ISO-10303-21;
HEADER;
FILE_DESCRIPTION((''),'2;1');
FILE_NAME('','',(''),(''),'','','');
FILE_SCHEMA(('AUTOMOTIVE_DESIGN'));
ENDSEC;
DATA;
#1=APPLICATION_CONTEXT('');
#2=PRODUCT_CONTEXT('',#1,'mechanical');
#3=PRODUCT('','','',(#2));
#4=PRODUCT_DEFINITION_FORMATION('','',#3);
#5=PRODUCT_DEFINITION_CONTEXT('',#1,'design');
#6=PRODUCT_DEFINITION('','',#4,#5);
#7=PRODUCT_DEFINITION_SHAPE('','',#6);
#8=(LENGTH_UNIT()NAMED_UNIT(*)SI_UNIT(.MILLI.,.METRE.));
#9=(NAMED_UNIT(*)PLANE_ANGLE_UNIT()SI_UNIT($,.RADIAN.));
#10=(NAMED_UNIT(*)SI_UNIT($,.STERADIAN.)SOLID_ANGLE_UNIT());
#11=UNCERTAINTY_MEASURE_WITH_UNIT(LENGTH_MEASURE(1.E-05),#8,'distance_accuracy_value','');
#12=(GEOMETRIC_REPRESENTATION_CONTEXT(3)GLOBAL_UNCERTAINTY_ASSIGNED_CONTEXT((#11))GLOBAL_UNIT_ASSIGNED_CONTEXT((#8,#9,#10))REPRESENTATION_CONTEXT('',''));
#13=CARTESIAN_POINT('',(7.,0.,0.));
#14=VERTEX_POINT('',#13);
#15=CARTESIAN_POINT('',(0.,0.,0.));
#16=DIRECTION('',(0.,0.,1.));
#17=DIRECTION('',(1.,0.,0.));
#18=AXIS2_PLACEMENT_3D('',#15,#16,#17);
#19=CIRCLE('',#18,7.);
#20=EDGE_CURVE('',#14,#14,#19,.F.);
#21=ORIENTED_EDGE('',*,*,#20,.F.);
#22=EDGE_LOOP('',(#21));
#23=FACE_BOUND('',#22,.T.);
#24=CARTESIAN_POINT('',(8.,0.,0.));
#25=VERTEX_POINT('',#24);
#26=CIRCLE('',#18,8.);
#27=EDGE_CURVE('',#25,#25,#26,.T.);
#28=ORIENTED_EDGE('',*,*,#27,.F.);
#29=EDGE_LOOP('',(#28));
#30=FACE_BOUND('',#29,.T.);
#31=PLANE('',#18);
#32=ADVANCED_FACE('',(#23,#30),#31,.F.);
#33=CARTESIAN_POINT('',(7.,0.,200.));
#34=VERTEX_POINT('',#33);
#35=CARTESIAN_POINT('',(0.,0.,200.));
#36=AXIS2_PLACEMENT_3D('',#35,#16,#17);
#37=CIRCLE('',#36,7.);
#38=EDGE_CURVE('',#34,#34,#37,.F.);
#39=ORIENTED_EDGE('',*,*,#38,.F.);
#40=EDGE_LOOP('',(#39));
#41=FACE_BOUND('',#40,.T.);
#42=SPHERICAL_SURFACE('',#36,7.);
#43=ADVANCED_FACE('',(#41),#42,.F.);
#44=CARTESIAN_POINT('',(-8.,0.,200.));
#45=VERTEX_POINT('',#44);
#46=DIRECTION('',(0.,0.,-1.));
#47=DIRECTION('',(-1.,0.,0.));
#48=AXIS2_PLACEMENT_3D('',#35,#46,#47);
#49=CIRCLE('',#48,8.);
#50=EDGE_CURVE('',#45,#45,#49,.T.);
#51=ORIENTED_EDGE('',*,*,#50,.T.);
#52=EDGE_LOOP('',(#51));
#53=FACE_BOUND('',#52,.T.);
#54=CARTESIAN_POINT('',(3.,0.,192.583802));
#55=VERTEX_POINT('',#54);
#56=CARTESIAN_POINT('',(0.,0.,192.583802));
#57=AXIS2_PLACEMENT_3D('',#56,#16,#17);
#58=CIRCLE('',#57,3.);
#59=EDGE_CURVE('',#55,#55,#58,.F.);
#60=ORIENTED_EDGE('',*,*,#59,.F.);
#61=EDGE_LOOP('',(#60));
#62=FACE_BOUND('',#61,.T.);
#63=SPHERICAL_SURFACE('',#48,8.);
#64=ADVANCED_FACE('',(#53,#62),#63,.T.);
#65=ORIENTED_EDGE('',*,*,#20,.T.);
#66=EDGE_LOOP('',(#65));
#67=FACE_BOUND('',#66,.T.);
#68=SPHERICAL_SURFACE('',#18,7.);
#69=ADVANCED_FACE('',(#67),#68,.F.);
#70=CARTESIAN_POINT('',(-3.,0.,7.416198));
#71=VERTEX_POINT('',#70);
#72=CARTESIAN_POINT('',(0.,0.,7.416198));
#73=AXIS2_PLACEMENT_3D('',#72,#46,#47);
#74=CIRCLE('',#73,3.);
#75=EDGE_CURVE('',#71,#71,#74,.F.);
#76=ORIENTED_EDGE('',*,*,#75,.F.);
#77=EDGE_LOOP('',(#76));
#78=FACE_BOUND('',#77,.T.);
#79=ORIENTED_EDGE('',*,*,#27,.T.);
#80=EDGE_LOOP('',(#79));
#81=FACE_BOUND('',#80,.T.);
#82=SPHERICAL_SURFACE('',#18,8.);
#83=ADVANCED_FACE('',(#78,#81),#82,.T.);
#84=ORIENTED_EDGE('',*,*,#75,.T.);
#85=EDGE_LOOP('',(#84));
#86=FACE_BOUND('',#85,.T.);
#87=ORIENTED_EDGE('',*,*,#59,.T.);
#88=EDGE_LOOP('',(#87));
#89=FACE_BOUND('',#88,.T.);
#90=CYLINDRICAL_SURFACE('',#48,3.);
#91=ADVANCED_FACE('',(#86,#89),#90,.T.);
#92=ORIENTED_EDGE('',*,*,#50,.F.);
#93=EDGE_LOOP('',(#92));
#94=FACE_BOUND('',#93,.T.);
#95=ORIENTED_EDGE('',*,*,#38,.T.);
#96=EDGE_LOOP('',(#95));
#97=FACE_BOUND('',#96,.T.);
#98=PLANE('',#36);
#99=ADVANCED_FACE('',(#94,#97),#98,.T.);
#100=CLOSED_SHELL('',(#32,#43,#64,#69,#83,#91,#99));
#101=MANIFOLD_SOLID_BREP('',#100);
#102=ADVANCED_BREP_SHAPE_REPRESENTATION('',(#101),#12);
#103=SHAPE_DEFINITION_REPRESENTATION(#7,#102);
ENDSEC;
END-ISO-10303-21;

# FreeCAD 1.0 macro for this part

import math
import FreeCAD as App
import Part
import Sketcher

doc = App.newDocument("Part")
body = doc.addObject("PartDesign::Body", "Body")

# Sketch on XY plane
sketch1 = body.newObject("Sketcher::SketchObject", "Sketch")
sketch1.AttachmentSupport = (doc.getObject("XY_Plane"), [""])
sketch1.MapMode = "FlatFace"
sketch1.addGeometry(Part.Circle(App.Vector(0, 0, 0), App.Vector(0, 0, 1), 3), False)
sketch1.addConstraint([
    Sketcher.Constraint("Coincident", 0, 3, -1, 1),
    Sketcher.Constraint("Diameter", 0, 6.0),
])
pad1 = body.newObject("PartDesign::Pad", "Pad")
pad1.Profile = sketch1
pad1.Length = 200

# Sketch on XY plane
sketch2 = body.newObject("Sketcher::SketchObject", "Sketch001")
sketch2.AttachmentSupport = (doc.getObject("XY_Plane"), [""])
sketch2.MapMode = "FlatFace"
sketch2.AttachmentOffset = App.Placement(App.Vector(0, 0, 200), App.Rotation())
sketch2.addGeometry([
    Part.LineSegment(App.Vector(0, 8, 0), App.Vector(0, -8, 0)),
    Part.ArcOfCircle(Part.Circle(App.Vector(0, 0, 0), App.Vector(0, 0, 1), 8), math.radians(-90), math.radians(90)),
], False)
sketch2.addConstraint([
    Sketcher.Constraint("Coincident", 0, 1, 1, 2),
    Sketcher.Constraint("Coincident", 1, 1, 0, 2),
    Sketcher.Constraint("Vertical", 0),
    Sketcher.Constraint("Coincident", 1, 3, -1, 1),
    Sketcher.Constraint("PointOnObject", 0, 1, -2),
    Sketcher.Constraint("Radius", 1, 8.0),
])
revolution = body.newObject("PartDesign::Revolution", "Revolution")
revolution.Profile = sketch2
revolution.ReferenceAxis = (sketch2, ["V_Axis"])
revolution.Angle = 180

# Sketch on XY plane
sketch3 = body.newObject("Sketcher::SketchObject", "Sketch002")
sketch3.AttachmentSupport = (doc.getObject("XY_Plane"), [""])
sketch3.MapMode = "FlatFace"
sketch3.AttachmentOffset = App.Placement(App.Vector(0, 0, 200), App.Rotation())
sketch3.addGeometry([
    Part.LineSegment(App.Vector(0, 7, 0), App.Vector(0, -7, 0)),
    Part.ArcOfCircle(Part.Circle(App.Vector(0, 0, 0), App.Vector(0, 0, 1), 7), math.radians(-90), math.radians(90)),
], False)
sketch3.addConstraint([
    Sketcher.Constraint("Coincident", 0, 1, 1, 2),
    Sketcher.Constraint("Coincident", 1, 1, 0, 2),
    Sketcher.Constraint("Vertical", 0),
    Sketcher.Constraint("Coincident", 1, 3, -1, 1),
    Sketcher.Constraint("PointOnObject", 0, 1, -2),
    Sketcher.Constraint("Radius", 1, 7.0),
])
groove = body.newObject("PartDesign::Groove", "Groove")
groove.Profile = sketch3
groove.ReferenceAxis = (sketch3, ["V_Axis"])
groove.Angle = 360

# Sketch on XY plane
sketch4 = body.newObject("Sketcher::SketchObject", "Sketch003")
sketch4.AttachmentSupport = (doc.getObject("XY_Plane"), [""])
sketch4.MapMode = "FlatFace"
sketch4.addGeometry([
    Part.LineSegment(App.Vector(0, 8, 0), App.Vector(0, -8, 0)),
    Part.ArcOfCircle(Part.Circle(App.Vector(0, 0, 0), App.Vector(0, 0, 1), 8), math.radians(90), math.radians(270)),
], False)
sketch4.addConstraint([
    Sketcher.Constraint("Coincident", 0, 1, 1, 1),
    Sketcher.Constraint("Coincident", 1, 2, 0, 2),
    Sketcher.Constraint("Vertical", 0),
    Sketcher.Constraint("Coincident", 1, 3, -1, 1),
    Sketcher.Constraint("PointOnObject", 0, 1, -2),
    Sketcher.Constraint("Radius", 1, 8.0),
])
revolution2 = body.newObject("PartDesign::Revolution", "Revolution001")
revolution2.Profile = sketch4
revolution2.ReferenceAxis = (sketch4, ["V_Axis"])
revolution2.Angle = 180

# Sketch on XY plane
sketch5 = body.newObject("Sketcher::SketchObject", "Sketch004")
sketch5.AttachmentSupport = (doc.getObject("XY_Plane"), [""])
sketch5.MapMode = "FlatFace"
sketch5.addGeometry([
    Part.LineSegment(App.Vector(0, 7, 0), App.Vector(0, -7, 0)),
    Part.ArcOfCircle(Part.Circle(App.Vector(0, 0, 0), App.Vector(0, 0, 1), 7), math.radians(90), math.radians(270)),
], False)
sketch5.addConstraint([
    Sketcher.Constraint("Coincident", 0, 1, 1, 1),
    Sketcher.Constraint("Coincident", 1, 2, 0, 2),
    Sketcher.Constraint("Vertical", 0),
    Sketcher.Constraint("Coincident", 1, 3, -1, 1),
    Sketcher.Constraint("PointOnObject", 0, 1, -2),
    Sketcher.Constraint("Radius", 1, 7.0),
])
groove2 = body.newObject("PartDesign::Groove", "Groove001")
groove2.Profile = sketch5
groove2.ReferenceAxis = (sketch5, ["V_Axis"])
groove2.Angle = 360

doc.recompute()
